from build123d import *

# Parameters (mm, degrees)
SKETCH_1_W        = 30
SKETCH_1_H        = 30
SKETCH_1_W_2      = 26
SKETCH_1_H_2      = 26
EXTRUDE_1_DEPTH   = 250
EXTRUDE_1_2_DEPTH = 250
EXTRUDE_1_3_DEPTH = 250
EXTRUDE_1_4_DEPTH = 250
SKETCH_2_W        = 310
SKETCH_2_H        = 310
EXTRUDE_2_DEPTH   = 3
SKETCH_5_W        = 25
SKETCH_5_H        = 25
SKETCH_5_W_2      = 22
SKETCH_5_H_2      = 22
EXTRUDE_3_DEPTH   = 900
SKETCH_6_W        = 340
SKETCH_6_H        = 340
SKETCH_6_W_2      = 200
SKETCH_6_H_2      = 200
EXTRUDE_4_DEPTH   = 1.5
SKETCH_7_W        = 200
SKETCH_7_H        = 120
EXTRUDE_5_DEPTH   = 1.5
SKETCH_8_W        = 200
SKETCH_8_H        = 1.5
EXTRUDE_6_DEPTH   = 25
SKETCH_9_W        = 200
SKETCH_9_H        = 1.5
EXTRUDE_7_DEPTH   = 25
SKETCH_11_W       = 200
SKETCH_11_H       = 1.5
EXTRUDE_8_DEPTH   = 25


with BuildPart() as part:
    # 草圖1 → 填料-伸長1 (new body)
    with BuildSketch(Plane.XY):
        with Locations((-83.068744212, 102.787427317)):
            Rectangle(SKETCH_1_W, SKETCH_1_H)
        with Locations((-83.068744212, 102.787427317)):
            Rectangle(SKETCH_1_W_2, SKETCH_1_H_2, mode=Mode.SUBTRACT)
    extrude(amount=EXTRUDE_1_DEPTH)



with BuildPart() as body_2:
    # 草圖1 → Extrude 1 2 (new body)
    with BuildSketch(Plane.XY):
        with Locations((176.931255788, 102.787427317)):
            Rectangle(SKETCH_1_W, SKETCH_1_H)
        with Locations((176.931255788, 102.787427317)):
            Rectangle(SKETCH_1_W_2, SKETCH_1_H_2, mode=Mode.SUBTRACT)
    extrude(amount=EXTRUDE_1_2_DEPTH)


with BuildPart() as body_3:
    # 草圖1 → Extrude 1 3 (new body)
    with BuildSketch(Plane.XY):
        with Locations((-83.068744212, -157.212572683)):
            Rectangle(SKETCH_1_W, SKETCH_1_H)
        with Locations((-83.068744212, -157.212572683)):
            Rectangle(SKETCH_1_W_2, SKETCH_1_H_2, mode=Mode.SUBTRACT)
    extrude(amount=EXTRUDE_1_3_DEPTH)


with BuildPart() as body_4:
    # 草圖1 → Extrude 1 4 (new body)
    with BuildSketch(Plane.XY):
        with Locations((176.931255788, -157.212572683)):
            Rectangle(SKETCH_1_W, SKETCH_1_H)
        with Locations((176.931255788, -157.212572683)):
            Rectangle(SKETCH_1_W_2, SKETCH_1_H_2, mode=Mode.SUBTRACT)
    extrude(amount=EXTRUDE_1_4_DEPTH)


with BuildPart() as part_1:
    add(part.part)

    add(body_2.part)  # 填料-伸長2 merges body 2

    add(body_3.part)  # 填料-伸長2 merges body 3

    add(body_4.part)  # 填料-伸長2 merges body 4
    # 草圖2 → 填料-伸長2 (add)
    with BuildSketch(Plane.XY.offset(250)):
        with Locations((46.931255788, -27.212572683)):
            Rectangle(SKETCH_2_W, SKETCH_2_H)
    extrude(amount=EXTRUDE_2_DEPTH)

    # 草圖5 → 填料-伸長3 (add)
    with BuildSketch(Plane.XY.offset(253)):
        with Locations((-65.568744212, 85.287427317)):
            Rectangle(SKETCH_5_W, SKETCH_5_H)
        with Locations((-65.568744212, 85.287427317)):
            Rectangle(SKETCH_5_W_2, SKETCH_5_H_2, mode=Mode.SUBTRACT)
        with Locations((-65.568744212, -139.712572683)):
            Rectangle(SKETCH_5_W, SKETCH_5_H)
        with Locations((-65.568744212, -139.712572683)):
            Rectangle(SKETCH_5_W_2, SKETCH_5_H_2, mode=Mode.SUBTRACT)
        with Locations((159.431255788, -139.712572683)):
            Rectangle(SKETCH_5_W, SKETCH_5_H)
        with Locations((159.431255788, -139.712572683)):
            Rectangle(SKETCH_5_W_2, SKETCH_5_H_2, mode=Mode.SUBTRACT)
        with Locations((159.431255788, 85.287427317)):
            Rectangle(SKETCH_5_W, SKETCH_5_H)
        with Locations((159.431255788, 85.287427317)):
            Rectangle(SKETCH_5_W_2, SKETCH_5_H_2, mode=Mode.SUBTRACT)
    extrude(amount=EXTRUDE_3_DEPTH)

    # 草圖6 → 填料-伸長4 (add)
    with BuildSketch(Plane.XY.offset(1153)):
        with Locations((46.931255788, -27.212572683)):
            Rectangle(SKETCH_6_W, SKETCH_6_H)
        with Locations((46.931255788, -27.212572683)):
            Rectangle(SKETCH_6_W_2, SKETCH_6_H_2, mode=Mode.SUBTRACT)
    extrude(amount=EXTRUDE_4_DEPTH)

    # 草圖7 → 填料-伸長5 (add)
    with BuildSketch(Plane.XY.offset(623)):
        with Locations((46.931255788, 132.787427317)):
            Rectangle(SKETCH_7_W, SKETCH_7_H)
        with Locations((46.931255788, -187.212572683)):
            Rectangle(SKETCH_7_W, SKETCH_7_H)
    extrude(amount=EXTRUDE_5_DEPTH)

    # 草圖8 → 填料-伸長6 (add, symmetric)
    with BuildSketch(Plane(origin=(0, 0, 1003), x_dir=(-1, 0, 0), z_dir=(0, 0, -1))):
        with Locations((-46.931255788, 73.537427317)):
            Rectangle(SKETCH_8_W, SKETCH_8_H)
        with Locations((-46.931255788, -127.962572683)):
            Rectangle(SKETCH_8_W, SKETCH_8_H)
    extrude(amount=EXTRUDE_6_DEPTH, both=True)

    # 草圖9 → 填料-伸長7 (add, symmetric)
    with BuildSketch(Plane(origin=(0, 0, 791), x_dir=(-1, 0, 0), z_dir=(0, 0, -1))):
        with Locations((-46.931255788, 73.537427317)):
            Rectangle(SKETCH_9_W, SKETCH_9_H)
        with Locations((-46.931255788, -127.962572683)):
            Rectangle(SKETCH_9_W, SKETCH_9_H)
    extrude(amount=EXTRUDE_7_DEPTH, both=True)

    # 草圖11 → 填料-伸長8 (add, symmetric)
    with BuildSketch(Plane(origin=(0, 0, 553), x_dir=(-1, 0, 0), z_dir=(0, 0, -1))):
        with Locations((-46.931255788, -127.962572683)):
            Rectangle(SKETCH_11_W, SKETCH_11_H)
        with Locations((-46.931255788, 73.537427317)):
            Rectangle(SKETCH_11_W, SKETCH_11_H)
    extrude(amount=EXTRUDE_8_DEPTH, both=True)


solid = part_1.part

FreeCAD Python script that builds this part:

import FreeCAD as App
import Part
import Sketcher
from FreeCAD import Vector


def add_polygon(sketch, points):
    """Adds a closed chain of lines whose ends are joined by coincident constraints."""
    first, n = sketch.GeometryCount, len(points)
    for a, b in zip(points, points[1:] + points[:1]):
        sketch.addGeometry(Part.LineSegment(App.Vector(*a, 0), App.Vector(*b, 0)), False)
    for i in range(n):
        sketch.addConstraint(Sketcher.Constraint("Coincident", first + i, 2, first + (i + 1) % n, 1))

doc = App.newDocument("Part")
body = doc.addObject("PartDesign::Body", "Body")

# Sketch on XY plane
sketch1 = body.newObject("Sketcher::SketchObject", "Sketch")
sketch1.AttachmentSupport = (doc.getObject("XY_Plane"), [""])
sketch1.MapMode = "FlatFace"
add_polygon(sketch1, [(-98.068744, 117.787427), (-98.068744, 87.787427), (-68.068744, 87.787427), (-68.068744, 117.787427)])  # lines 0-3
add_polygon(sketch1, [(-70.068744, 89.787427), (-96.068744, 89.787427), (-96.068744, 115.787427), (-70.068744, 115.787427)])  # lines 4-7
sketch1.addConstraint([
    Sketcher.Constraint("Vertical", 0),
    Sketcher.Constraint("Horizontal", 1),
    Sketcher.Constraint("Vertical", 2),
    Sketcher.Constraint("Horizontal", 3),
    Sketcher.Constraint("Horizontal", 4),
    Sketcher.Constraint("Vertical", 5),
    Sketcher.Constraint("Horizontal", 6),
    Sketcher.Constraint("Vertical", 7),
    Sketcher.Constraint("Equal", 3, 0),
    Sketcher.Constraint("Equal", 6, 5),
    Sketcher.Constraint("DistanceX", 1, 1, 1, 2, 30.0),
    Sketcher.Constraint("DistanceX", 4, 2, 4, 1, 26.0),
    Sketcher.Constraint("DistanceX", 0, 2, 4, 2, 2.0),
    Sketcher.Constraint("DistanceY", 0, 2, 4, 2, 2.0),
    Sketcher.Constraint("DistanceX", 0, 2, -1, 1, 98.068744),
    Sketcher.Constraint("DistanceY", -1, 1, 0, 2, 87.787427),
])
pad1 = body.newObject("PartDesign::Pad", "Pad")
pad1.Profile = sketch1
pad1.Length = 250
body2 = doc.addObject("PartDesign::Body", "Body001")

# Sketch on XY plane
sketch2 = body2.newObject("Sketcher::SketchObject", "Sketch001")
sketch2.AttachmentSupport = (doc.getObject("XY_Plane001"), [""])
sketch2.MapMode = "FlatFace"
add_polygon(sketch2, [(161.931256, 117.787427), (161.931256, 87.787427), (191.931256, 87.787427), (191.931256, 117.787427)])  # lines 0-3
add_polygon(sketch2, [(189.931256, 89.787427), (163.931256, 89.787427), (163.931256, 115.787427), (189.931256, 115.787427)])  # lines 4-7
sketch2.addConstraint([
    Sketcher.Constraint("Vertical", 0),
    Sketcher.Constraint("Horizontal", 1),
    Sketcher.Constraint("Vertical", 2),
    Sketcher.Constraint("Horizontal", 3),
    Sketcher.Constraint("Horizontal", 4),
    Sketcher.Constraint("Vertical", 5),
    Sketcher.Constraint("Horizontal", 6),
    Sketcher.Constraint("Vertical", 7),
    Sketcher.Constraint("Equal", 3, 0),
    Sketcher.Constraint("Equal", 6, 5),
    Sketcher.Constraint("DistanceX", 1, 1, 1, 2, 30.0),
    Sketcher.Constraint("DistanceX", 4, 2, 4, 1, 26.0),
    Sketcher.Constraint("DistanceX", 0, 2, 4, 2, 2.0),
    Sketcher.Constraint("DistanceY", 0, 2, 4, 2, 2.0),
    Sketcher.Constraint("DistanceX", -1, 1, 0, 2, 161.931256),
    Sketcher.Constraint("DistanceY", -1, 1, 0, 2, 87.787427),
])
pad2 = body2.newObject("PartDesign::Pad", "Pad001")
pad2.Profile = sketch2
pad2.Length = 250
body3 = doc.addObject("PartDesign::Body", "Body002")

# Sketch on XY plane
sketch3 = body3.newObject("Sketcher::SketchObject", "Sketch002")
sketch3.AttachmentSupport = (doc.getObject("XY_Plane002"), [""])
sketch3.MapMode = "FlatFace"
add_polygon(sketch3, [(-98.068744, -142.212573), (-98.068744, -172.212573), (-68.068744, -172.212573), (-68.068744, -142.212573)])  # lines 0-3
add_polygon(sketch3, [(-70.068744, -170.212573), (-96.068744, -170.212573), (-96.068744, -144.212573), (-70.068744, -144.212573)])  # lines 4-7
sketch3.addConstraint([
    Sketcher.Constraint("Vertical", 0),
    Sketcher.Constraint("Horizontal", 1),
    Sketcher.Constraint("Vertical", 2),
    Sketcher.Constraint("Horizontal", 3),
    Sketcher.Constraint("Horizontal", 4),
    Sketcher.Constraint("Vertical", 5),
    Sketcher.Constraint("Horizontal", 6),
    Sketcher.Constraint("Vertical", 7),
    Sketcher.Constraint("Equal", 3, 0),
    Sketcher.Constraint("Equal", 6, 5),
    Sketcher.Constraint("DistanceX", 1, 1, 1, 2, 30.0),
    Sketcher.Constraint("DistanceX", 4, 2, 4, 1, 26.0),
    Sketcher.Constraint("DistanceX", 0, 2, 4, 2, 2.0),
    Sketcher.Constraint("DistanceY", 0, 2, 4, 2, 2.0),
    Sketcher.Constraint("DistanceX", 0, 2, -1, 1, 98.068744),
    Sketcher.Constraint("DistanceY", 0, 2, -1, 1, 172.212573),
])
pad3 = body3.newObject("PartDesign::Pad", "Pad002")
pad3.Profile = sketch3
pad3.Length = 250
body4 = doc.addObject("PartDesign::Body", "Body003")

# Sketch on XY plane
sketch4 = body4.newObject("Sketcher::SketchObject", "Sketch003")
sketch4.AttachmentSupport = (doc.getObject("XY_Plane003"), [""])
sketch4.MapMode = "FlatFace"
add_polygon(sketch4, [(161.931256, -142.212573), (161.931256, -172.212573), (191.931256, -172.212573), (191.931256, -142.212573)])  # lines 0-3
add_polygon(sketch4, [(189.931256, -170.212573), (163.931256, -170.212573), (163.931256, -144.212573), (189.931256, -144.212573)])  # lines 4-7
sketch4.addConstraint([
    Sketcher.Constraint("Vertical", 0),
    Sketcher.Constraint("Horizontal", 1),
    Sketcher.Constraint("Vertical", 2),
    Sketcher.Constraint("Horizontal", 3),
    Sketcher.Constraint("Horizontal", 4),
    Sketcher.Constraint("Vertical", 5),
    Sketcher.Constraint("Horizontal", 6),
    Sketcher.Constraint("Vertical", 7),
    Sketcher.Constraint("Equal", 3, 0),
    Sketcher.Constraint("Equal", 6, 5),
    Sketcher.Constraint("DistanceX", 1, 1, 1, 2, 30.0),
    Sketcher.Constraint("DistanceX", 4, 2, 4, 1, 26.0),
    Sketcher.Constraint("DistanceX", 0, 2, 4, 2, 2.0),
    Sketcher.Constraint("DistanceY", 0, 2, 4, 2, 2.0),
    Sketcher.Constraint("DistanceX", -1, 1, 0, 2, 161.931256),
    Sketcher.Constraint("DistanceY", 0, 2, -1, 1, 172.212573),
])
pad4 = body4.newObject("PartDesign::Pad", "Pad003")
pad4.Profile = sketch4
pad4.Length = 250
body.AllowCompound = True
doc.recompute()

boolean = body.newObject("PartDesign::Boolean", "Boolean")
boolean.Type = "Fuse"
boolean.addObjects([body2])
doc.recompute()

boolean2 = body.newObject("PartDesign::Boolean", "Boolean001")
boolean2.Type = "Fuse"
boolean2.addObjects([body3])
doc.recompute()

boolean3 = body.newObject("PartDesign::Boolean", "Boolean002")
boolean3.Type = "Fuse"
boolean3.addObjects([body4])

# Sketch on XY plane
sketch5 = body.newObject("Sketcher::SketchObject", "Sketch004")
sketch5.AttachmentSupport = (doc.getObject("XY_Plane"), [""])
sketch5.MapMode = "FlatFace"
sketch5.AttachmentOffset = App.Placement(Vector(0, 0, 250), App.Rotation())
add_polygon(sketch5, [(-108.068744, 127.787427), (-108.068744, -182.212573), (201.931256, -182.212573), (201.931256, 127.787427)])  # lines 0-3
sketch5.addConstraint([
    Sketcher.Constraint("Vertical", 0),
    Sketcher.Constraint("Horizontal", 1),
    Sketcher.Constraint("Vertical", 2),
    Sketcher.Constraint("Horizontal", 3),
    Sketcher.Constraint("Equal", 3, 0),
    Sketcher.Constraint("DistanceX", 1, 1, 1, 2, 310.0),
    Sketcher.Constraint("DistanceX", 0, 2, -1, 1, 108.068744),
    Sketcher.Constraint("DistanceY", 0, 2, -1, 1, 182.212573),
])
pad5 = body.newObject("PartDesign::Pad", "Pad004")
pad5.Profile = sketch5
pad5.Length = 3

# Sketch on XY plane
sketch6 = body.newObject("Sketcher::SketchObject", "Sketch005")
sketch6.AttachmentSupport = (doc.getObject("XY_Plane"), [""])
sketch6.MapMode = "FlatFace"
sketch6.AttachmentOffset = App.Placement(Vector(0, 0, 253), App.Rotation())
add_polygon(sketch6, [(-78.068744, 97.787427), (-78.068744, 72.787427), (-53.068744, 72.787427), (-53.068744, 97.787427)])  # lines 0-3
add_polygon(sketch6, [(-54.568744, 74.287427), (-76.568744, 74.287427), (-76.568744, 96.287427), (-54.568744, 96.287427)])  # lines 4-7
add_polygon(sketch6, [(-78.068744, -127.212573), (-78.068744, -152.212573), (-53.068744, -152.212573), (-53.068744, -127.212573)])  # lines 8-11
add_polygon(sketch6, [(-54.568744, -150.712573), (-76.568744, -150.712573), (-76.568744, -128.712573), (-54.568744, -128.712573)])  # lines 12-15
add_polygon(sketch6, [(146.931256, -127.212573), (146.931256, -152.212573), (171.931256, -152.212573), (171.931256, -127.212573)])  # lines 16-19
add_polygon(sketch6, [(170.431256, -150.712573), (148.431256, -150.712573), (148.431256, -128.712573), (170.431256, -128.712573)])  # lines 20-23
add_polygon(sketch6, [(146.931256, 97.787427), (146.931256, 72.787427), (171.931256, 72.787427), (171.931256, 97.787427)])  # lines 24-27
add_polygon(sketch6, [(170.431256, 74.287427), (148.431256, 74.287427), (148.431256, 96.287427), (170.431256, 96.287427)])  # lines 28-31
sketch6.addConstraint([
    Sketcher.Constraint("Vertical", 0),
    Sketcher.Constraint("Horizontal", 1),
    Sketcher.Constraint("Vertical", 2),
    Sketcher.Constraint("Horizontal", 3),
    Sketcher.Constraint("Horizontal", 4),
    Sketcher.Constraint("Vertical", 5),
    Sketcher.Constraint("Horizontal", 6),
    Sketcher.Constraint("Vertical", 7),
    Sketcher.Constraint("Vertical", 8),
    Sketcher.Constraint("Horizontal", 9),
    Sketcher.Constraint("Vertical", 10),
    Sketcher.Constraint("Horizontal", 11),
    Sketcher.Constraint("Horizontal", 12),
    Sketcher.Constraint("Vertical", 13),
    Sketcher.Constraint("Horizontal", 14),
    Sketcher.Constraint("Vertical", 15),
    Sketcher.Constraint("Vertical", 16),
    Sketcher.Constraint("Horizontal", 17),
    Sketcher.Constraint("Vertical", 18),
    Sketcher.Constraint("Horizontal", 19),
    Sketcher.Constraint("Horizontal", 20),
    Sketcher.Constraint("Vertical", 21),
    Sketcher.Constraint("Horizontal", 22),
    Sketcher.Constraint("Vertical", 23),
    Sketcher.Constraint("Vertical", 24),
    Sketcher.Constraint("Horizontal", 25),
    Sketcher.Constraint("Vertical", 26),
    Sketcher.Constraint("Horizontal", 27),
    Sketcher.Constraint("Horizontal", 28),
    Sketcher.Constraint("Vertical", 29),
    Sketcher.Constraint("Horizontal", 30),
    Sketcher.Constraint("Vertical", 31),
    Sketcher.Constraint("Horizontal", 9, 2, 16, 2),
    Sketcher.Constraint("Horizontal", 11, 2, 18, 2),
    Sketcher.Constraint("Horizontal", 15, 2, 20, 2),
    Sketcher.Constraint("Horizontal", 14, 2, 21, 2),
    Sketcher.Constraint("Horizontal", 1, 2, 24, 2),
    Sketcher.Constraint("Horizontal", 3, 2, 26, 2),
    Sketcher.Constraint("Horizontal", 7, 2, 28, 2),
    Sketcher.Constraint("Horizontal", 6, 2, 29, 2),
    Sketcher.Constraint("Vertical", 3, 2, 8, 2),
    Sketcher.Constraint("Vertical", 2, 2, 9, 2),
    Sketcher.Constraint("Vertical", 5, 2, 12, 2),
    Sketcher.Constraint("Vertical", 7, 2, 14, 2),
    Sketcher.Constraint("Vertical", 19, 2, 24, 2),
    Sketcher.Constraint("Vertical", 18, 2, 25, 2),
    Sketcher.Constraint("Vertical", 21, 2, 28, 2),
    Sketcher.Constraint("Vertical", 23, 2, 30, 2),
    Sketcher.Constraint("Equal", 11, 17),
    Sketcher.Constraint("Equal", 14, 20),
    Sketcher.Constraint("Equal", 27, 0),
    Sketcher.Constraint("Equal", 30, 5),
    Sketcher.Constraint("Equal", 2, 8),
    Sketcher.Constraint("Equal", 7, 13),
    Sketcher.Constraint("DistanceX", 1, 1, 1, 2, 25.0),
    Sketcher.Constraint("DistanceX", 4, 2, 4, 1, 22.0),
    Sketcher.Constraint("DistanceY", 8, 2, 0, 2, 225.0),
    Sketcher.Constraint("DistanceX", 9, 2, 16, 2, 200.0),
    Sketcher.Constraint("DistanceX", 0, 2, 4, 2, 1.5),
    Sketcher.Constraint("DistanceY", 0, 2, 4, 2, 1.5),
    Sketcher.Constraint("DistanceY", 8, 2, 12, 2, 1.5),
    Sketcher.Constraint("DistanceX", 16, 2, 20, 2, 1.5),
    Sketcher.Constraint("DistanceX", 0, 2, -1, 1, 78.068744),
    Sketcher.Constraint("DistanceY", -1, 1, 0, 2, 72.787427),
])
pad6 = body.newObject("PartDesign::Pad", "Pad005")
pad6.Profile = sketch6
pad6.Length = 900

# Sketch on XY plane
sketch7 = body.newObject("Sketcher::SketchObject", "Sketch006")
sketch7.AttachmentSupport = (doc.getObject("XY_Plane"), [""])
sketch7.MapMode = "FlatFace"
sketch7.AttachmentOffset = App.Placement(Vector(0, 0, 1153), App.Rotation())
add_polygon(sketch7, [(-123.068744, 142.787427), (-123.068744, -197.212573), (216.931256, -197.212573), (216.931256, 142.787427)])  # lines 0-3
add_polygon(sketch7, [(146.931256, -127.212573), (-53.068744, -127.212573), (-53.068744, 72.787427), (146.931256, 72.787427)])  # lines 4-7
sketch7.addConstraint([
    Sketcher.Constraint("Vertical", 0),
    Sketcher.Constraint("Horizontal", 1),
    Sketcher.Constraint("Vertical", 2),
    Sketcher.Constraint("Horizontal", 3),
    Sketcher.Constraint("Horizontal", 4),
    Sketcher.Constraint("Vertical", 5),
    Sketcher.Constraint("Horizontal", 6),
    Sketcher.Constraint("Vertical", 7),
    Sketcher.Constraint("Equal", 3, 0),
    Sketcher.Constraint("Equal", 6, 5),
    Sketcher.Constraint("DistanceX", 1, 1, 1, 2, 340.0),
    Sketcher.Constraint("DistanceX", 4, 2, 4, 1, 200.0),
    Sketcher.Constraint("DistanceX", 0, 2, 4, 2, 70.0),
    Sketcher.Constraint("DistanceY", 0, 2, 4, 2, 70.0),
    Sketcher.Constraint("DistanceX", 0, 2, -1, 1, 123.068744),
    Sketcher.Constraint("DistanceY", 0, 2, -1, 1, 197.212573),
])
pad7 = body.newObject("PartDesign::Pad", "Pad006")
pad7.Profile = sketch7
pad7.Length = 1.5

# Sketch on XY plane
sketch8 = body.newObject("Sketcher::SketchObject", "Sketch007")
sketch8.AttachmentSupport = (doc.getObject("XY_Plane"), [""])
sketch8.MapMode = "FlatFace"
sketch8.AttachmentOffset = App.Placement(Vector(0, 0, 623), App.Rotation())
add_polygon(sketch8, [(-53.068744, 192.787427), (-53.068744, 72.787427), (146.931256, 72.787427), (146.931256, 192.787427)])  # lines 0-3
add_polygon(sketch8, [(-53.068744, -127.212573), (-53.068744, -247.212573), (146.931256, -247.212573), (146.931256, -127.212573)])  # lines 4-7
sketch8.addConstraint([
    Sketcher.Constraint("Vertical", 0),
    Sketcher.Constraint("Horizontal", 1),
    Sketcher.Constraint("Vertical", 2),
    Sketcher.Constraint("Horizontal", 3),
    Sketcher.Constraint("Vertical", 4),
    Sketcher.Constraint("Horizontal", 5),
    Sketcher.Constraint("Vertical", 6),
    Sketcher.Constraint("Horizontal", 7),
    Sketcher.Constraint("Vertical", 3, 2, 4, 2),
    Sketcher.Constraint("Vertical", 2, 2, 5, 2),
    Sketcher.Constraint("Equal", 2, 4),
    Sketcher.Constraint("DistanceX", 1, 1, 1, 2, 200.0),
    Sketcher.Constraint("DistanceY", 0, 2, 0, 1, 120.0),
    Sketcher.Constraint("DistanceY", 4, 2, 0, 2, 320.0),
    Sketcher.Constraint("DistanceX", 0, 2, -1, 1, 53.068744),
    Sketcher.Constraint("DistanceY", -1, 1, 0, 2, 72.787427),
])
pad8 = body.newObject("PartDesign::Pad", "Pad007")
pad8.Profile = sketch8
pad8.Length = 1.5

# Sketch on XY plane
sketch9 = body.newObject("Sketcher::SketchObject", "Sketch008")
sketch9.AttachmentSupport = (doc.getObject("XY_Plane"), [""])
sketch9.MapMode = "FlatFace"
sketch9.AttachmentOffset = App.Placement(Vector(0, 0, 1003), App.Rotation())
add_polygon(sketch9, [(146.931256, 74.287427), (146.931256, 72.787427), (-53.068744, 72.787427), (-53.068744, 74.287427)])  # lines 0-3
add_polygon(sketch9, [(146.931256, -127.212573), (146.931256, -128.712573), (-53.068744, -128.712573), (-53.068744, -127.212573)])  # lines 4-7
sketch9.addConstraint([
    Sketcher.Constraint("Vertical", 0),
    Sketcher.Constraint("Horizontal", 1),
    Sketcher.Constraint("Vertical", 2),
    Sketcher.Constraint("Horizontal", 3),
    Sketcher.Constraint("Vertical", 4),
    Sketcher.Constraint("Horizontal", 5),
    Sketcher.Constraint("Vertical", 6),
    Sketcher.Constraint("Horizontal", 7),
    Sketcher.Constraint("Vertical", 3, 2, 4, 2),
    Sketcher.Constraint("Vertical", 2, 2, 5, 2),
    Sketcher.Constraint("Equal", 2, 4),
    Sketcher.Constraint("DistanceX", 1, 2, 1, 1, 200.0),
    Sketcher.Constraint("DistanceY", 0, 2, 0, 1, 1.5),
    Sketcher.Constraint("DistanceY", 4, 2, 3, 2, 203.0),
    Sketcher.Constraint("DistanceX", -1, 1, 0, 2, 146.931256),
    Sketcher.Constraint("DistanceY", -1, 1, 0, 2, 72.787427),
])
pad9 = body.newObject("PartDesign::Pad", "Pad008")
pad9.Profile = sketch9
pad9.Length = 50
pad9.Midplane = True

# Sketch on XY plane
sketch10 = body.newObject("Sketcher::SketchObject", "Sketch009")
sketch10.AttachmentSupport = (doc.getObject("XY_Plane"), [""])
sketch10.MapMode = "FlatFace"
sketch10.AttachmentOffset = App.Placement(Vector(0, 0, 791), App.Rotation())
add_polygon(sketch10, [(146.931256, 74.287427), (146.931256, 72.787427), (-53.068744, 72.787427), (-53.068744, 74.287427)])  # lines 0-3
add_polygon(sketch10, [(146.931256, -127.212573), (146.931256, -128.712573), (-53.068744, -128.712573), (-53.068744, -127.212573)])  # lines 4-7
sketch10.addConstraint([
    Sketcher.Constraint("Vertical", 0),
    Sketcher.Constraint("Horizontal", 1),
    Sketcher.Constraint("Vertical", 2),
    Sketcher.Constraint("Horizontal", 3),
    Sketcher.Constraint("Vertical", 4),
    Sketcher.Constraint("Horizontal", 5),
    Sketcher.Constraint("Vertical", 6),
    Sketcher.Constraint("Horizontal", 7),
    Sketcher.Constraint("Vertical", 3, 2, 4, 2),
    Sketcher.Constraint("Vertical", 2, 2, 5, 2),
    Sketcher.Constraint("Equal", 2, 4),
    Sketcher.Constraint("DistanceX", 1, 2, 1, 1, 200.0),
    Sketcher.Constraint("DistanceY", 0, 2, 0, 1, 1.5),
    Sketcher.Constraint("DistanceY", 4, 2, 3, 2, 203.0),
    Sketcher.Constraint("DistanceX", -1, 1, 0, 2, 146.931256),
    Sketcher.Constraint("DistanceY", -1, 1, 0, 2, 72.787427),
])
pad10 = body.newObject("PartDesign::Pad", "Pad009")
pad10.Profile = sketch10
pad10.Length = 50
pad10.Midplane = True

# Sketch on XY plane
sketch11 = body.newObject("Sketcher::SketchObject", "Sketch010")
sketch11.AttachmentSupport = (doc.getObject("XY_Plane"), [""])
sketch11.MapMode = "FlatFace"
sketch11.AttachmentOffset = App.Placement(Vector(0, 0, 553), App.Rotation())
add_polygon(sketch11, [(146.931256, -127.212573), (146.931256, -128.712573), (-53.068744, -128.712573), (-53.068744, -127.212573)])  # lines 0-3
add_polygon(sketch11, [(146.931256, 74.287427), (146.931256, 72.787427), (-53.068744, 72.787427), (-53.068744, 74.287427)])  # lines 4-7
sketch11.addConstraint([
    Sketcher.Constraint("Vertical", 0),
    Sketcher.Constraint("Horizontal", 1),
    Sketcher.Constraint("Vertical", 2),
    Sketcher.Constraint("Horizontal", 3),
    Sketcher.Constraint("Vertical", 4),
    Sketcher.Constraint("Horizontal", 5),
    Sketcher.Constraint("Vertical", 6),
    Sketcher.Constraint("Horizontal", 7),
    Sketcher.Constraint("Vertical", 3, 2, 4, 2),
    Sketcher.Constraint("Vertical", 2, 2, 5, 2),
    Sketcher.Constraint("Equal", 2, 4),
    Sketcher.Constraint("DistanceX", 1, 2, 1, 1, 200.0),
    Sketcher.Constraint("DistanceY", 0, 2, 0, 1, 1.5),
    Sketcher.Constraint("DistanceY", 3, 2, 4, 2, 200.0),
    Sketcher.Constraint("DistanceX", -1, 1, 0, 2, 146.931256),
    Sketcher.Constraint("DistanceY", 0, 2, -1, 1, 128.712573),
])
pad11 = body.newObject("PartDesign::Pad", "Pad010")
pad11.Profile = sketch11
pad11.Length = 50
pad11.Midplane = True

doc.recompute()
